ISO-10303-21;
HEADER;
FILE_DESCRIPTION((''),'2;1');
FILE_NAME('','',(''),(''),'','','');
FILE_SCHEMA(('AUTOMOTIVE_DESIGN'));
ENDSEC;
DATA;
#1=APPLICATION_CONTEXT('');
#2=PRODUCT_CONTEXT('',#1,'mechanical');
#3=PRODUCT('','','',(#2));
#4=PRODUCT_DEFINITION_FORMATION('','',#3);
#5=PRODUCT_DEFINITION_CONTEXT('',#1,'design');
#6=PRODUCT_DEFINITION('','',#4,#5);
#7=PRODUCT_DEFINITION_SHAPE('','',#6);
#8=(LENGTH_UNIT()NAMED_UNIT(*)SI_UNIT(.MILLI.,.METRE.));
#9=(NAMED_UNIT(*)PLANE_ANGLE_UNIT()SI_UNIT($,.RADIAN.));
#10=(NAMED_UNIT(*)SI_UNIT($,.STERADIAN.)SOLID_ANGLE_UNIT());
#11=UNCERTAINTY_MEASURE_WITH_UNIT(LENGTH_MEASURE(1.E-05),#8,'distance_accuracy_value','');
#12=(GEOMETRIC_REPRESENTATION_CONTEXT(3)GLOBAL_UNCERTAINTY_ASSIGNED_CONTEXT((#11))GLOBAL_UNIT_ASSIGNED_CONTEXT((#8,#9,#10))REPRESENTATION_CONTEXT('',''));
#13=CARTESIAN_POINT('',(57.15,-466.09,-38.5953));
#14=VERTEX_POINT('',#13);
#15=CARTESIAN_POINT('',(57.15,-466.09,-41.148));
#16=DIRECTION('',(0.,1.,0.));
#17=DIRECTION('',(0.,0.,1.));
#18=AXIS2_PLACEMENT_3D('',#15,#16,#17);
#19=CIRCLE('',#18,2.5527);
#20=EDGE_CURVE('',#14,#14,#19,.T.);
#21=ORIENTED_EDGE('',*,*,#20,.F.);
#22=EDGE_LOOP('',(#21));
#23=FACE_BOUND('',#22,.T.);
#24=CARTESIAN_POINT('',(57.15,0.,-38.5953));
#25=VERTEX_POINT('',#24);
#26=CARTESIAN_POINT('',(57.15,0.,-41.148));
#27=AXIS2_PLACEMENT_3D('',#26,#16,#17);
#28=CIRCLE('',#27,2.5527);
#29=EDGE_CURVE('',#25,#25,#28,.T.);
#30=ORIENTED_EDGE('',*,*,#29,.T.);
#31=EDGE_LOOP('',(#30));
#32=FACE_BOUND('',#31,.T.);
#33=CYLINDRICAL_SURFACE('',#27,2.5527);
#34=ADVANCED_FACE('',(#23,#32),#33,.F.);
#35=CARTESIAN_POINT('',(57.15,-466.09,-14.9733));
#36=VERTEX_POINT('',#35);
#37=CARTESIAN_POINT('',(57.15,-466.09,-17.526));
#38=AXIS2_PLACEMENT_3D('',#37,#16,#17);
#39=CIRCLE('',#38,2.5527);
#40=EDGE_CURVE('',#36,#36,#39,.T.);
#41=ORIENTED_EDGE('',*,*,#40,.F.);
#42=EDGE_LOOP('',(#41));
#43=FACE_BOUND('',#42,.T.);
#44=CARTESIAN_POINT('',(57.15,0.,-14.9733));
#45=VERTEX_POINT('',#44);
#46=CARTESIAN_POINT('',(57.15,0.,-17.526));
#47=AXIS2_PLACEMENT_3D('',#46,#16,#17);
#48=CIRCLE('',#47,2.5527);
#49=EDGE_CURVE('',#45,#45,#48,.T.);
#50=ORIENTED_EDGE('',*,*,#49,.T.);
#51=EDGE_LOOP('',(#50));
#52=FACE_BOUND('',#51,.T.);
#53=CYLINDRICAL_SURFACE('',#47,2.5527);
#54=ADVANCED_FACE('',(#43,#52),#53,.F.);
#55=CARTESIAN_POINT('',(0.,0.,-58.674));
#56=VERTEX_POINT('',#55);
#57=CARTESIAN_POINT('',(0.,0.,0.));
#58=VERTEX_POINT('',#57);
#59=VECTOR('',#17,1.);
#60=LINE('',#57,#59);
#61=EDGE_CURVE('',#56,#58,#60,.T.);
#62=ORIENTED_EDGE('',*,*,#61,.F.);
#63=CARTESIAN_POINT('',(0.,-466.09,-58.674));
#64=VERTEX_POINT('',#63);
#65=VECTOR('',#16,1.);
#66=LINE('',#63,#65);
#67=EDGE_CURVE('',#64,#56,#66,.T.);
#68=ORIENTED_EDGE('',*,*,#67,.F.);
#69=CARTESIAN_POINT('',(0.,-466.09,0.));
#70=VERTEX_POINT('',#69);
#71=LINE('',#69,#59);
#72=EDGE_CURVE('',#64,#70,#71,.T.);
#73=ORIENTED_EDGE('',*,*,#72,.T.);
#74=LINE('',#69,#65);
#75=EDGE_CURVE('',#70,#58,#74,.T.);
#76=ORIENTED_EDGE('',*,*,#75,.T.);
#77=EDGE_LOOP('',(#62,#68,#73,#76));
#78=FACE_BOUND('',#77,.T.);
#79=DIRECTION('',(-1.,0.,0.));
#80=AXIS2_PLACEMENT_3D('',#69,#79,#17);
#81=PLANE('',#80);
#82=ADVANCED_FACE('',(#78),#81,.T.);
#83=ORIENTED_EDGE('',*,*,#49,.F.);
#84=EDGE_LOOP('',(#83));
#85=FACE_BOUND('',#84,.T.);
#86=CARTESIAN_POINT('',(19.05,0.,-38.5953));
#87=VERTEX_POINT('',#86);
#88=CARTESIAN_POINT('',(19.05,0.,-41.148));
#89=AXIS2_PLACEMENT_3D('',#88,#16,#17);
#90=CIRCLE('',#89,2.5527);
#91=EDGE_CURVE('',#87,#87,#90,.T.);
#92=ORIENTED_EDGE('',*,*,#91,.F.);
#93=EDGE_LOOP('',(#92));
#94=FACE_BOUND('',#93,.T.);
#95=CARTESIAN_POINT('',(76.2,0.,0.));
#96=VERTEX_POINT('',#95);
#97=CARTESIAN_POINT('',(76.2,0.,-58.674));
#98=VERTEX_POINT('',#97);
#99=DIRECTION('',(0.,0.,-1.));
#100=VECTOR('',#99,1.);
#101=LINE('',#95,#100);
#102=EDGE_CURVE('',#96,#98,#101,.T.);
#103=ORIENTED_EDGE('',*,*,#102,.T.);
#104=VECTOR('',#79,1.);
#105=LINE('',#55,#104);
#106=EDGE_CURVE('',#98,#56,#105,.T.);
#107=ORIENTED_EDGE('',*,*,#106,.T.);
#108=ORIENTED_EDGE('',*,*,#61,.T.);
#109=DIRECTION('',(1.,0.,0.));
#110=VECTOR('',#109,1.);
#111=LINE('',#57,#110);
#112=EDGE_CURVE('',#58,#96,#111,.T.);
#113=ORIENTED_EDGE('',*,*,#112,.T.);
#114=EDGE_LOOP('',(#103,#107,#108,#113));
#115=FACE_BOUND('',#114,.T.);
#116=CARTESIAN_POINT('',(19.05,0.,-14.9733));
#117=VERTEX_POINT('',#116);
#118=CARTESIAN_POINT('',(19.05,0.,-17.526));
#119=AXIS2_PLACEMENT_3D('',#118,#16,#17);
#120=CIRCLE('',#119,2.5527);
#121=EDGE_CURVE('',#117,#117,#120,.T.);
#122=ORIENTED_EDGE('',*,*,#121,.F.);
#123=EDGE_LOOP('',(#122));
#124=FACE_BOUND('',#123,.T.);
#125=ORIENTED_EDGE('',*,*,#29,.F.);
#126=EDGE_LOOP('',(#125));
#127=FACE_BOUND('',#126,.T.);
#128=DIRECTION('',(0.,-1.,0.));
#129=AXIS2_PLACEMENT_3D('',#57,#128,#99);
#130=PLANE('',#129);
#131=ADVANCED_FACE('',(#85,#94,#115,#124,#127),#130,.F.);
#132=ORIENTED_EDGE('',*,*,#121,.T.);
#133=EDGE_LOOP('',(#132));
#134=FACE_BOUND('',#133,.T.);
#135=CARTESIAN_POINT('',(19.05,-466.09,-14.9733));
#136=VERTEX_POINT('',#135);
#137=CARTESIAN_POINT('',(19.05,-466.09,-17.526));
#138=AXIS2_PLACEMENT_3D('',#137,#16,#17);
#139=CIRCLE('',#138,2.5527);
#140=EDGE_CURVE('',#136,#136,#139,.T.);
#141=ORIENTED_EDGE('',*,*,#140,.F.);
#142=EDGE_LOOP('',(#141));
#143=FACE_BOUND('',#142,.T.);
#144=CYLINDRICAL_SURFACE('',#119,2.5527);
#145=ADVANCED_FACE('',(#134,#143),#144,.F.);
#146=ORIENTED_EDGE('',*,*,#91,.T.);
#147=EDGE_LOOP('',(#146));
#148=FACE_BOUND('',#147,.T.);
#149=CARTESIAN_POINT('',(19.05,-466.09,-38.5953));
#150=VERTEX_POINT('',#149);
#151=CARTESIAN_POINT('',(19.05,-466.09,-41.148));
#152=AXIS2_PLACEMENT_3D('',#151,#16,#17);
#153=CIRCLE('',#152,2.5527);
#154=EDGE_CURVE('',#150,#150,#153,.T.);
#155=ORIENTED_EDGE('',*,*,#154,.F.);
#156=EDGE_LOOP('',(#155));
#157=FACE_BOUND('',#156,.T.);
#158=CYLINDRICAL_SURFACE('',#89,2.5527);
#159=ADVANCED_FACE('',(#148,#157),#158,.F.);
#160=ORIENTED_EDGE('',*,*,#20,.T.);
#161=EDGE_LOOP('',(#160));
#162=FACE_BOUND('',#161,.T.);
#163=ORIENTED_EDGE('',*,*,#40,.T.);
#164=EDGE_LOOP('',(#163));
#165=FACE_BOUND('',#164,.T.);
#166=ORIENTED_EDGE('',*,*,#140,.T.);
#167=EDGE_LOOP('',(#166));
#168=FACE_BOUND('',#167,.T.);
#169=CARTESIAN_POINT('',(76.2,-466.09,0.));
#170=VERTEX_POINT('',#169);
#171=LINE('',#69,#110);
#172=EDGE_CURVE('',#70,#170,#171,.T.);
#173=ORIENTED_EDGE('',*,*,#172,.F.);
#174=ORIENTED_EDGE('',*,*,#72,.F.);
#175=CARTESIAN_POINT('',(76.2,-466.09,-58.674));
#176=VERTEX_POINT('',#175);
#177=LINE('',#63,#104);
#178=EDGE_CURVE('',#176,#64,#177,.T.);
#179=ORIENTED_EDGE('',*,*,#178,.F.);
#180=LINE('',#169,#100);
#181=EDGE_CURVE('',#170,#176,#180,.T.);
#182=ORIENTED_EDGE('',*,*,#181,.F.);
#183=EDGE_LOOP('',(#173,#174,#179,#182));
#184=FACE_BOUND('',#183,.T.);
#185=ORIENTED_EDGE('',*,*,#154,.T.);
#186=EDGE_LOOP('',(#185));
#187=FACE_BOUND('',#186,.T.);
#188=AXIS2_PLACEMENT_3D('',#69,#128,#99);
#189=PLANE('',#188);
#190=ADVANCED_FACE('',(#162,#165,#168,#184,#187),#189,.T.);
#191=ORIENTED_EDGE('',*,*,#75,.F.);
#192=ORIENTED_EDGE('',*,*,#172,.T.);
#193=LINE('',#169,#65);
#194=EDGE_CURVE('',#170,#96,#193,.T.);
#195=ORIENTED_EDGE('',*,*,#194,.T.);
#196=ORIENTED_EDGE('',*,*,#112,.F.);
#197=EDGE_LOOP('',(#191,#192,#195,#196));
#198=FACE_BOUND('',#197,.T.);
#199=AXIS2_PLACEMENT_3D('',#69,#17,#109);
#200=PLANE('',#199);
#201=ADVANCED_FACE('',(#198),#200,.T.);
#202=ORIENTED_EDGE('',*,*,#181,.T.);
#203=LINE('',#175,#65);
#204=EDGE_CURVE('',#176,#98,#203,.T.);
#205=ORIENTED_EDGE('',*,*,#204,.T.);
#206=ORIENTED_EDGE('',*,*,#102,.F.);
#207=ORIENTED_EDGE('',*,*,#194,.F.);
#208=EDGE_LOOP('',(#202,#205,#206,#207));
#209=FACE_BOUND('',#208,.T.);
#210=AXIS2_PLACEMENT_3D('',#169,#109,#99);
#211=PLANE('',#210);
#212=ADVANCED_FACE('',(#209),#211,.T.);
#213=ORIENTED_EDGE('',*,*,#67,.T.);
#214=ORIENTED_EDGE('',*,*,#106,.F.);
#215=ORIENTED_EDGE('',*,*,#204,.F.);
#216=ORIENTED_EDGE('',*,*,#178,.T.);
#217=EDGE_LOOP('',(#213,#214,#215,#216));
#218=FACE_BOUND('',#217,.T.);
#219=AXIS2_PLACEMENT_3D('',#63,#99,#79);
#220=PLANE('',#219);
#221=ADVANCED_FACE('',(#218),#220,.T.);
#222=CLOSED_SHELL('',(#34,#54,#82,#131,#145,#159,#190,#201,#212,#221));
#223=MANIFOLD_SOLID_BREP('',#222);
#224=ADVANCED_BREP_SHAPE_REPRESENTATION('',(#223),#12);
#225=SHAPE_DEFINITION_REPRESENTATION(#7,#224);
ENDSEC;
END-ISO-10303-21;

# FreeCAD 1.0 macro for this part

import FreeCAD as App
import Part
import Sketcher
Q = App.Units.Quantity


def add_polygon(sketch, points):
    """Adds a closed chain of lines whose ends are joined by coincident constraints."""
    first, n = sketch.GeometryCount, len(points)
    for a, b in zip(points, points[1:] + points[:1]):
        sketch.addGeometry(Part.LineSegment(App.Vector(*a, 0), App.Vector(*b, 0)), False)
    for i in range(n):
        sketch.addConstraint(Sketcher.Constraint("Coincident", first + i, 2, first + (i + 1) % n, 1))

doc = App.newDocument("Part")
body = doc.addObject("PartDesign::Body", "Body")

# Sketch on XZ plane
sketch1 = body.newObject("Sketcher::SketchObject", "Sketch")
sketch1.AttachmentSupport = (doc.getObject("XZ_Plane"), [""])
sketch1.MapMode = "FlatFace"
add_polygon(sketch1, [(0, -58.674), (0, 0), (76.2, 0), (76.2, -58.674)])  # lines 0-3
sketch1.addConstraint(Sketcher.Constraint("Vertical", 0))
sketch1.addConstraint(Sketcher.Constraint("Horizontal", 1))
sketch1.addConstraint(Sketcher.Constraint("Vertical", 2))
sketch1.addConstraint(Sketcher.Constraint("Horizontal", 3))
sketch1.addConstraint(Sketcher.Constraint("Coincident", 0, 2, -1, 1))
sketch1.addConstraint(Sketcher.Constraint("DistanceX", 1, 1, 1, 2, Q("3 in")))
sketch1.addConstraint(Sketcher.Constraint("DistanceY", 0, 1, 0, 2, Q("2.31 in")))
pad1 = body.newObject("PartDesign::Pad", "Pad")
pad1.Profile = sketch1
pad1.Length = Q("18.35 in")

# Sketch on XZ plane
sketch2 = body.newObject("Sketcher::SketchObject", "Sketch001")
sketch2.AttachmentSupport = (doc.getObject("XZ_Plane"), [""])
sketch2.MapMode = "FlatFace"
sketch2.addGeometry(Part.Circle(App.Vector(57.15, -41.148, 0), App.Vector(0, 0, 1), 2.5527), False)
sketch2.addGeometry(Part.Circle(App.Vector(57.15, -17.526, 0), App.Vector(0, 0, 1), 2.5527), False)
sketch2.addGeometry(Part.Circle(App.Vector(19.05, -41.148, 0), App.Vector(0, 0, 1), 2.5527), False)
sketch2.addGeometry(Part.Circle(App.Vector(19.05, -17.526, 0), App.Vector(0, 0, 1), 2.5527), False)
sketch2.addGeometry(Part.Circle(App.Vector(42.826801, -120.810554, 0), App.Vector(0, 0, 1), 2.5527), False)
sketch2.addConstraint(Sketcher.Constraint("Equal", 0, 1))
sketch2.addConstraint(Sketcher.Constraint("Equal", 1, 2))
sketch2.addConstraint(Sketcher.Constraint("Equal", 2, 3))
sketch2.addConstraint(Sketcher.Constraint("Equal", 3, 4))
sketch2.addConstraint(Sketcher.Constraint("Horizontal", 0, 3, 2, 3))
sketch2.addConstraint(Sketcher.Constraint("Horizontal", 1, 3, 3, 3))
sketch2.addConstraint(Sketcher.Constraint("Vertical", 0, 3, 1, 3))
sketch2.addConstraint(Sketcher.Constraint("Vertical", 2, 3, 3, 3))
sketch2.addConstraint(Sketcher.Constraint("Diameter", 0, Q("0.201 in")))
sketch2.addConstraint(Sketcher.Constraint("DistanceX", 2, 3, 0, 3, Q("1.5 in")))
sketch2.addConstraint(Sketcher.Constraint("DistanceX", -1, 1, 0, 3, Q("2.25 in")))
sketch2.addConstraint(Sketcher.Constraint("DistanceY", 0, 3, -1, 1, Q("1.62 in")))
sketch2.addConstraint(Sketcher.Constraint("DistanceY", 1, 3, -1, 1, Q("0.69 in")))
sketch2.addConstraint(Sketcher.Constraint("DistanceX", -1, 1, 4, 3, 42.826801))
sketch2.addConstraint(Sketcher.Constraint("DistanceY", 4, 3, -1, 1, 120.810554))
doc.recompute()
hole = body.newObject("PartDesign::Hole", "Hole")
hole.Profile = sketch2
hole.ThreadType = "None"
hole.Diameter = Q("0.201 in")
hole.DepthType = "ThroughAll"
hole.Reversed = True

doc.recompute()
